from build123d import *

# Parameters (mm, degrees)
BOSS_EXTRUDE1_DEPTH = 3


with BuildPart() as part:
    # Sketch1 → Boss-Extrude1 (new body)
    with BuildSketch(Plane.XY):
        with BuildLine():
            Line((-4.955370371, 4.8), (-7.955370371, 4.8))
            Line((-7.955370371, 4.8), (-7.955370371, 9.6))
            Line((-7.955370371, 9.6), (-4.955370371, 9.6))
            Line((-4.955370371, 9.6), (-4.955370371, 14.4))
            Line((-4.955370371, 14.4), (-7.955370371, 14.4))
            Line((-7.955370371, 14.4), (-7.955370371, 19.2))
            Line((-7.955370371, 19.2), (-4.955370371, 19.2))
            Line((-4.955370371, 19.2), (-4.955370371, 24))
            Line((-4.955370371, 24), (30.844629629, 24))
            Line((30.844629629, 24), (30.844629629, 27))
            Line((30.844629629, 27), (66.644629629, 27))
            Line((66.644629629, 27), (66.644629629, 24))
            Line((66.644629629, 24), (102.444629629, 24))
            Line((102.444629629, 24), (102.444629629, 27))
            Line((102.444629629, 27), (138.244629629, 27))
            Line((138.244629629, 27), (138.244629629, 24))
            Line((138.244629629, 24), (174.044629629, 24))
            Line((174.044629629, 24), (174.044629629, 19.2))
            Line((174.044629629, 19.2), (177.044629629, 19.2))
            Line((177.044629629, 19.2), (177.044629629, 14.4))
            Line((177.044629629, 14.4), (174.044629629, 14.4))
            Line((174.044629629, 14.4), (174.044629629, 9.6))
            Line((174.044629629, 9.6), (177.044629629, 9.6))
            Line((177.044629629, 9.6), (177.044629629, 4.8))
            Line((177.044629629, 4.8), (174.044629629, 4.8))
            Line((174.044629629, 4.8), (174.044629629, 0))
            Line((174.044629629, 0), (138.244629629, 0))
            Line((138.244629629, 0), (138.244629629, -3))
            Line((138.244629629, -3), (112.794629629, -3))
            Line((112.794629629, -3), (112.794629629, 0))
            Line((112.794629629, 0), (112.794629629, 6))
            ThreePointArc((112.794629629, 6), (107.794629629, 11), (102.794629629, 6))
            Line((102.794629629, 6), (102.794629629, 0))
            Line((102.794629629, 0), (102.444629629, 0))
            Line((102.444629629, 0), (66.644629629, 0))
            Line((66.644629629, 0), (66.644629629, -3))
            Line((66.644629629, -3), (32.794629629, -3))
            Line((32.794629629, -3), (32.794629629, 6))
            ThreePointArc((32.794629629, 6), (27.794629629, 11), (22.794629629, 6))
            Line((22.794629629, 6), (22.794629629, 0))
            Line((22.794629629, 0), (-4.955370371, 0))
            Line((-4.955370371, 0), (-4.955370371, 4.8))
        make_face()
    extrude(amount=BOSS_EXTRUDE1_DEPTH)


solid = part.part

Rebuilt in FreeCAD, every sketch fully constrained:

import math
import FreeCAD as App
import Part
import Sketcher
Q = App.Units.Quantity

doc = App.newDocument("Part")
body = doc.addObject("PartDesign::Body", "Body")

# Sketch on XY plane
sketch1 = doc.addObject("Sketcher::SketchObject", "Sketch")
body.addObject(sketch1)
sketch1.AttachmentSupport = (doc.XY_Plane, [""])
sketch1.MapMode = "FlatFace"
sketch1.addGeometry([
    Part.LineSegment(App.Vector(-8, 4.8, 0), App.Vector(-5, 4.8, 0)),  # 0
    Part.LineSegment(App.Vector(-5, 4.8, 0), App.Vector(-5, 0, 0)),  # 1
    Part.LineSegment(App.Vector(-5, 0, 0), App.Vector(22.8, 0, 0)),  # 2
    Part.LineSegment(App.Vector(22.8, 0, 0), App.Vector(22.8, 6, 0)),  # 3
    Part.ArcOfCircle(Part.Circle(App.Vector(27.8, 6, 0), App.Vector(0, 0, 1), 5), math.radians(0), math.radians(180)),  # 4
    Part.LineSegment(App.Vector(32.8, 6, 0), App.Vector(32.8, -3, 0)),  # 5
    Part.LineSegment(App.Vector(32.8, -3, 0), App.Vector(66.6, -3, 0)),  # 6
    Part.LineSegment(App.Vector(66.6, -3, 0), App.Vector(66.6, 0, 0)),  # 7
    Part.LineSegment(App.Vector(66.6, 0, 0), App.Vector(102.8, 0, 0)),  # 8
    Part.LineSegment(App.Vector(102.8, 0, 0), App.Vector(102.8, 6, 0)),  # 9
    Part.ArcOfCircle(Part.Circle(App.Vector(107.8, 6, 0), App.Vector(0, 0, 1), 5), math.radians(0), math.radians(180)),  # 10
    Part.LineSegment(App.Vector(112.8, 6, 0), App.Vector(112.8, -3, 0)),  # 11
    Part.LineSegment(App.Vector(112.8, -3, 0), App.Vector(138.2, -3, 0)),  # 12
    Part.LineSegment(App.Vector(138.2, -3, 0), App.Vector(138.2, 0, 0)),  # 13
    Part.LineSegment(App.Vector(138.2, 0, 0), App.Vector(174, 0, 0)),  # 14
    Part.LineSegment(App.Vector(174, 0, 0), App.Vector(174, 4.8, 0)),  # 15
    Part.LineSegment(App.Vector(174, 4.8, 0), App.Vector(177, 4.8, 0)),  # 16
    Part.LineSegment(App.Vector(177, 4.8, 0), App.Vector(177, 9.6, 0)),  # 17
    Part.LineSegment(App.Vector(177, 9.6, 0), App.Vector(174, 9.6, 0)),  # 18
    Part.LineSegment(App.Vector(174, 9.6, 0), App.Vector(174, 14.4, 0)),  # 19
    Part.LineSegment(App.Vector(174, 14.4, 0), App.Vector(177, 14.4, 0)),  # 20
    Part.LineSegment(App.Vector(177, 14.4, 0), App.Vector(177, 19.2, 0)),  # 21
    Part.LineSegment(App.Vector(177, 19.2, 0), App.Vector(174, 19.2, 0)),  # 22
    Part.LineSegment(App.Vector(174, 19.2, 0), App.Vector(174, 24, 0)),  # 23
    Part.LineSegment(App.Vector(174, 24, 0), App.Vector(138.2, 24, 0)),  # 24
    Part.LineSegment(App.Vector(138.2, 24, 0), App.Vector(138.2, 27, 0)),  # 25
    Part.LineSegment(App.Vector(138.2, 27, 0), App.Vector(102.4, 27, 0)),  # 26
    Part.LineSegment(App.Vector(102.4, 27, 0), App.Vector(102.4, 24, 0)),  # 27
    Part.LineSegment(App.Vector(102.4, 24, 0), App.Vector(66.6, 24, 0)),  # 28
    Part.LineSegment(App.Vector(66.6, 24, 0), App.Vector(66.6, 27, 0)),  # 29
    Part.LineSegment(App.Vector(66.6, 27, 0), App.Vector(30.8, 27, 0)),  # 30
    Part.LineSegment(App.Vector(30.8, 27, 0), App.Vector(30.8, 24, 0)),  # 31
    Part.LineSegment(App.Vector(30.8, 24, 0), App.Vector(-5, 24, 0)),  # 32
    Part.LineSegment(App.Vector(-5, 24, 0), App.Vector(-5, 19.2, 0)),  # 33
    Part.LineSegment(App.Vector(-5, 19.2, 0), App.Vector(-8, 19.2, 0)),  # 34
    Part.LineSegment(App.Vector(-8, 19.2, 0), App.Vector(-8, 14.4, 0)),  # 35
    Part.LineSegment(App.Vector(-8, 14.4, 0), App.Vector(-5, 14.4, 0)),  # 36
    Part.LineSegment(App.Vector(-5, 14.4, 0), App.Vector(-5, 9.6, 0)),  # 37
    Part.LineSegment(App.Vector(-5, 9.6, 0), App.Vector(-8, 9.6, 0)),  # 38
    Part.LineSegment(App.Vector(-8, 9.6, 0), App.Vector(-8, 4.8, 0)),  # 39
], False)
sketch1.addConstraint([
    Sketcher.Constraint("Coincident", 0, 2, 1, 1),
    Sketcher.Constraint("Coincident", 1, 2, 2, 1),
    Sketcher.Constraint("Coincident", 2, 2, 3, 1),
    Sketcher.Constraint("Tangent", 3, 2, 4, 2),
    Sketcher.Constraint("Tangent", 4, 1, 5, 1),
    Sketcher.Constraint("Coincident", 5, 2, 6, 1),
    Sketcher.Constraint("Coincident", 6, 2, 7, 1),
    Sketcher.Constraint("Coincident", 7, 2, 8, 1),
    Sketcher.Constraint("Coincident", 8, 2, 9, 1),
    Sketcher.Constraint("Tangent", 9, 2, 10, 2),
    Sketcher.Constraint("Tangent", 10, 1, 11, 1),
    Sketcher.Constraint("Coincident", 11, 2, 12, 1),
    Sketcher.Constraint("Coincident", 12, 2, 13, 1),
    Sketcher.Constraint("Coincident", 13, 2, 14, 1),
    Sketcher.Constraint("Coincident", 14, 2, 15, 1),
    Sketcher.Constraint("Coincident", 15, 2, 16, 1),
    Sketcher.Constraint("Coincident", 16, 2, 17, 1),
    Sketcher.Constraint("Coincident", 17, 2, 18, 1),
    Sketcher.Constraint("Coincident", 18, 2, 19, 1),
    Sketcher.Constraint("Coincident", 19, 2, 20, 1),
    Sketcher.Constraint("Coincident", 20, 2, 21, 1),
    Sketcher.Constraint("Coincident", 21, 2, 22, 1),
    Sketcher.Constraint("Coincident", 22, 2, 23, 1),
    Sketcher.Constraint("Coincident", 23, 2, 24, 1),
    Sketcher.Constraint("Coincident", 24, 2, 25, 1),
    Sketcher.Constraint("Coincident", 25, 2, 26, 1),
    Sketcher.Constraint("Coincident", 26, 2, 27, 1),
    Sketcher.Constraint("Coincident", 27, 2, 28, 1),
    Sketcher.Constraint("Coincident", 28, 2, 29, 1),
    Sketcher.Constraint("Coincident", 29, 2, 30, 1),
    Sketcher.Constraint("Coincident", 30, 2, 31, 1),
    Sketcher.Constraint("Coincident", 31, 2, 32, 1),
    Sketcher.Constraint("Coincident", 32, 2, 33, 1),
    Sketcher.Constraint("Coincident", 33, 2, 34, 1),
    Sketcher.Constraint("Coincident", 34, 2, 35, 1),
    Sketcher.Constraint("Coincident", 35, 2, 36, 1),
    Sketcher.Constraint("Coincident", 36, 2, 37, 1),
    Sketcher.Constraint("Coincident", 37, 2, 38, 1),
    Sketcher.Constraint("Coincident", 38, 2, 39, 1),
    Sketcher.Constraint("Coincident", 39, 2, 0, 1),
    Sketcher.Constraint("Horizontal", 0),
    Sketcher.Constraint("Vertical", 1),
    Sketcher.Constraint("Horizontal", 2),
    Sketcher.Constraint("Vertical", 3),
    Sketcher.Constraint("Vertical", 5),
    Sketcher.Constraint("Horizontal", 6),
    Sketcher.Constraint("Vertical", 7),
    Sketcher.Constraint("Horizontal", 8),
    Sketcher.Constraint("Vertical", 9),
    Sketcher.Constraint("Vertical", 11),
    Sketcher.Constraint("Horizontal", 12),
    Sketcher.Constraint("Vertical", 13),
    Sketcher.Constraint("Horizontal", 14),
    Sketcher.Constraint("Vertical", 15),
    Sketcher.Constraint("Horizontal", 16),
    Sketcher.Constraint("Vertical", 17),
    Sketcher.Constraint("Horizontal", 18),
    Sketcher.Constraint("Vertical", 19),
    Sketcher.Constraint("Horizontal", 20),
    Sketcher.Constraint("Vertical", 21),
    Sketcher.Constraint("Horizontal", 22),
    Sketcher.Constraint("Vertical", 23),
    Sketcher.Constraint("Horizontal", 24),
    Sketcher.Constraint("Vertical", 25),
    Sketcher.Constraint("Horizontal", 26),
    Sketcher.Constraint("Vertical", 27),
    Sketcher.Constraint("Horizontal", 28),
    Sketcher.Constraint("Vertical", 29),
    Sketcher.Constraint("Horizontal", 30),
    Sketcher.Constraint("Vertical", 31),
    Sketcher.Constraint("Horizontal", 32),
    Sketcher.Constraint("Vertical", 33),
    Sketcher.Constraint("Horizontal", 34),
    Sketcher.Constraint("Vertical", 35),
    Sketcher.Constraint("Horizontal", 36),
    Sketcher.Constraint("Vertical", 37),
    Sketcher.Constraint("Horizontal", 38),
    Sketcher.Constraint("Vertical", 39),
    Sketcher.Constraint("Equal", 4, 10),
    Sketcher.Constraint("PointOnObject", 1, 2, -1),
    Sketcher.Constraint("PointOnObject", 7, 2, -1),
    Sketcher.Constraint("PointOnObject", 13, 2, -1),
    Sketcher.Constraint("Horizontal", 4, 3, 10, 3),
    Sketcher.Constraint("Horizontal", 6, 2, 11, 2),
    Sketcher.Constraint("Horizontal", 0, 2, 15, 2),
    Sketcher.Constraint("Horizontal", 24, 2, 27, 2),
    Sketcher.Constraint("Horizontal", 26, 2, 29, 2),
    Sketcher.Constraint("Horizontal", 28, 2, 31, 2),
    Sketcher.Constraint("Horizontal", 22, 2, 33, 2),
    Sketcher.Constraint("Horizontal", 20, 2, 35, 2),
    Sketcher.Constraint("Horizontal", 18, 2, 37, 2),
    Sketcher.Constraint("Vertical", 15, 2, 18, 2),
    Sketcher.Constraint("Vertical", 17, 2, 20, 2),
    Sketcher.Constraint("Vertical", 19, 2, 22, 2),
    Sketcher.Constraint("Vertical", 13, 2, 24, 2),
    Sketcher.Constraint("Vertical", 7, 2, 28, 2),
    Sketcher.Constraint("Vertical", 1, 2, 32, 2),
    Sketcher.Constraint("Vertical", 33, 2, 36, 2),
    Sketcher.Constraint("Vertical", 35, 2, 38, 2),
    Sketcher.Constraint("Equal", 0, 16),
    Sketcher.Constraint("Equal", 24, 26),
    Sketcher.Constraint("Equal", 26, 28),
    Sketcher.Constraint("Equal", 28, 30),
    Sketcher.Constraint("Equal", 30, 32),
    Sketcher.Constraint("Equal", 38, 7),
    Sketcher.Constraint("Equal", 15, 17),
    Sketcher.Constraint("Equal", 17, 19),
    Sketcher.Constraint("Equal", 19, 21),
    Sketcher.Constraint("Equal", 21, 23),
    Sketcher.Constraint("Equal", 13, 25),
    Sketcher.Constraint("Radius", 4, Q("5 mm")),
    Sketcher.Constraint("DistanceX", 0, 1, 0, 2, Q("3 mm")),
    Sketcher.Constraint("DistanceY", 3, 1, 3, 2, Q("6 mm")),
    Sketcher.Constraint("DistanceX", 14, 1, 14, 2, Q("35.8 mm")),
    Sketcher.Constraint("DistanceY", 1, 2, 1, 1, Q("4.8 mm")),
    Sketcher.Constraint("DistanceX", 4, 3, 10, 3, Q("80 mm")),
    Sketcher.Constraint("DistanceX", 2, 1, 2, 2, Q("27.75 mm")),
    Sketcher.Constraint("DistanceX", -1, 1, 4, 3, Q("27.79463 mm")),
])
pad1 = doc.addObject("PartDesign::Pad", "Pad")
body.addObject(pad1)
pad1.Profile = sketch1
pad1.Length = 3

doc.recompute()
